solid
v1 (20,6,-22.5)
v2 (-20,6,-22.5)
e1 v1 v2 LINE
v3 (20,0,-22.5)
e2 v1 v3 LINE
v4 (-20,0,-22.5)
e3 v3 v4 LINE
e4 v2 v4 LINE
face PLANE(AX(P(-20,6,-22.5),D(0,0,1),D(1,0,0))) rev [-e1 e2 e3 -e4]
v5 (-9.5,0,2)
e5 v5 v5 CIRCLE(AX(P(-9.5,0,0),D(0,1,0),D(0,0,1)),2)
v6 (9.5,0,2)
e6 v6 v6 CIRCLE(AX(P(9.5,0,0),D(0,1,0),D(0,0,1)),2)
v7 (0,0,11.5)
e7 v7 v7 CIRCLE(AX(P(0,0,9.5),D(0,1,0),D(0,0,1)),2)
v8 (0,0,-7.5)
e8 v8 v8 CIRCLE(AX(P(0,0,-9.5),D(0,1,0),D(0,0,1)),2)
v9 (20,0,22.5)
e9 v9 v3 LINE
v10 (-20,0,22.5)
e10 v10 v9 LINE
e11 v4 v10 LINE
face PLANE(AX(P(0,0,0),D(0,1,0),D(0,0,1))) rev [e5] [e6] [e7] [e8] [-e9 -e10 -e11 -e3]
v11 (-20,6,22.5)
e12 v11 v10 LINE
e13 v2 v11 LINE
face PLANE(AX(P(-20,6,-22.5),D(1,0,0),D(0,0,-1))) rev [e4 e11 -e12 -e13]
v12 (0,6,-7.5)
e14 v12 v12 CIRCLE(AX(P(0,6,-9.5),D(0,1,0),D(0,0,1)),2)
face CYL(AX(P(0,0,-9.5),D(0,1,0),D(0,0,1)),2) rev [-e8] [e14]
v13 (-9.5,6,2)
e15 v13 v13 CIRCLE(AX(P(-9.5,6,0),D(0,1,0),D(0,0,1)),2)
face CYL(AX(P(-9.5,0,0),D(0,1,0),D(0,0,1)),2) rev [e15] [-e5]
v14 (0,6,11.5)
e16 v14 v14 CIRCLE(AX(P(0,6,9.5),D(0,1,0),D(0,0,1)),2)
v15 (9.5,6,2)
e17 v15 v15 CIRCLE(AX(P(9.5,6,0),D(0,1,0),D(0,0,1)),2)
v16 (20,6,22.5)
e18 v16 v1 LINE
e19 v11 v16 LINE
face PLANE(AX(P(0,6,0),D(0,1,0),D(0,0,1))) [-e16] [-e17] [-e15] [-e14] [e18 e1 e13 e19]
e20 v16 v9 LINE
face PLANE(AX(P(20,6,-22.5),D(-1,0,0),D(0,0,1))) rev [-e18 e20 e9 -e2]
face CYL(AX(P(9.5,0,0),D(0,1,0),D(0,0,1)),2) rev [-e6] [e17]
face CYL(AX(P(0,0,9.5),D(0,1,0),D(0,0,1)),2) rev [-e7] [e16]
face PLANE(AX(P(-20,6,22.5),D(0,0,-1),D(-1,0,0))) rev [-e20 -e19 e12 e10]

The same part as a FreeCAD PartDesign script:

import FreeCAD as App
import Part
import Sketcher
Q = App.Units.Quantity


def add_polygon(sketch, points):
    """Adds a closed chain of lines whose ends are joined by coincident constraints."""
    first, n = sketch.GeometryCount, len(points)
    for a, b in zip(points, points[1:] + points[:1]):
        sketch.addGeometry(Part.LineSegment(App.Vector(*a, 0), App.Vector(*b, 0)), False)
    for i in range(n):
        sketch.addConstraint(Sketcher.Constraint("Coincident", first + i, 2, first + (i + 1) % n, 1))

doc = App.newDocument("Part")
params = doc.addObject("Spreadsheet::Sheet", "Params")
for row, (alias, value) in enumerate([
    ("sketch1_width", "40 mm"),
    ("sketch1_height", "45 mm"),
    ("pad1_length", "6 mm"),
    ("sketch2_diameter", "4 mm"),
    ("pocket1_length", "6 mm"),
], start=1):
    params.set(f"A{row}", alias)
    params.set(f"B{row}", "=" + value)
    params.setAlias(f"B{row}", alias)

body = doc.addObject("PartDesign::Body", "Body")

sketch1 = body.newObject("Sketcher::SketchObject", "Sketch")
sketch1.AttachmentSupport = (doc.getObject("XZ_Plane"), [""])
sketch1.MapMode = "FlatFace"
add_polygon(sketch1, [(-20, -22), (-20, 22), (20, 22), (20, -22)])
sketch1.addConstraint(Sketcher.Constraint("Vertical", 0))
sketch1.addConstraint(Sketcher.Constraint("Horizontal", 1))
sketch1.addConstraint(Sketcher.Constraint("Vertical", 2))
sketch1.addConstraint(Sketcher.Constraint("Horizontal", 3))
sketch1.addConstraint(Sketcher.Constraint("Symmetric", 0, 2, 2, 2, -1, 1))
sketch1.addConstraint(Sketcher.Constraint("DistanceX", 1, 1, 1, 2, Q("40 mm")))
sketch1.addConstraint(Sketcher.Constraint("DistanceY", 0, 1, 0, 2, Q("45 mm")))
sketch1.setExpression("Constraints[9]", "Params.sketch1_width")
sketch1.setExpression("Constraints[10]", "Params.sketch1_height")
pad1 = body.newObject("PartDesign::Pad", "Pad")
pad1.Profile = sketch1
pad1.setExpression("Length", "Params.pad1_length")
pad1.Reversed = True

sketch2 = body.newObject("Sketcher::SketchObject", "Sketch001")
sketch2.AttachmentSupport = (doc.getObject("XZ_Plane"), [""])
sketch2.MapMode = "FlatFace"
sketch2.AttachmentOffset = App.Placement(App.Vector(0, 0, -6), App.Rotation())
sketch2.addGeometry(Part.Circle(App.Vector(0, -9.5, 0), App.Vector(0, 0, 1), 2), False)
sketch2.addGeometry(Part.Circle(App.Vector(9.5, 0, 0), App.Vector(0, 0, 1), 2), False)
sketch2.addGeometry(Part.Circle(App.Vector(0, 9.5, 0), App.Vector(0, 0, 1), 2), False)
sketch2.addGeometry(Part.Circle(App.Vector(-9.5, 0, 0), App.Vector(0, 0, 1), 2), False)
sketch2.addConstraint(Sketcher.Constraint("Equal", 0, 1))
sketch2.addConstraint(Sketcher.Constraint("Equal", 1, 2))
sketch2.addConstraint(Sketcher.Constraint("Equal", 2, 3))
sketch2.addConstraint(Sketcher.Constraint("Symmetric", 0, 3, 2, 3, -1, 1))
sketch2.addConstraint(Sketcher.Constraint("Symmetric", 1, 3, 3, 3, -1, 1))
sketch2.addConstraint(Sketcher.Constraint("PointOnObject", 0, 3, -2))
sketch2.addConstraint(Sketcher.Constraint("PointOnObject", 1, 3, -1))
sketch2.addConstraint(Sketcher.Constraint("Diameter", 0, Q("4 mm")))
sketch2.addConstraint(Sketcher.Constraint("DistanceY", 0, 3, 2, 3, Q("19 mm")))
sketch2.addConstraint(Sketcher.Constraint("DistanceX", 3, 3, 1, 3, Q("19 mm")))
sketch2.setExpression("Constraints[7]", "Params.sketch2_diameter")
pocket1 = body.newObject("PartDesign::Pocket", "Pocket")
pocket1.Profile = sketch2
pocket1.setExpression("Length", "Params.pocket1_length")
pocket1.Reversed = True

doc.recompute()
